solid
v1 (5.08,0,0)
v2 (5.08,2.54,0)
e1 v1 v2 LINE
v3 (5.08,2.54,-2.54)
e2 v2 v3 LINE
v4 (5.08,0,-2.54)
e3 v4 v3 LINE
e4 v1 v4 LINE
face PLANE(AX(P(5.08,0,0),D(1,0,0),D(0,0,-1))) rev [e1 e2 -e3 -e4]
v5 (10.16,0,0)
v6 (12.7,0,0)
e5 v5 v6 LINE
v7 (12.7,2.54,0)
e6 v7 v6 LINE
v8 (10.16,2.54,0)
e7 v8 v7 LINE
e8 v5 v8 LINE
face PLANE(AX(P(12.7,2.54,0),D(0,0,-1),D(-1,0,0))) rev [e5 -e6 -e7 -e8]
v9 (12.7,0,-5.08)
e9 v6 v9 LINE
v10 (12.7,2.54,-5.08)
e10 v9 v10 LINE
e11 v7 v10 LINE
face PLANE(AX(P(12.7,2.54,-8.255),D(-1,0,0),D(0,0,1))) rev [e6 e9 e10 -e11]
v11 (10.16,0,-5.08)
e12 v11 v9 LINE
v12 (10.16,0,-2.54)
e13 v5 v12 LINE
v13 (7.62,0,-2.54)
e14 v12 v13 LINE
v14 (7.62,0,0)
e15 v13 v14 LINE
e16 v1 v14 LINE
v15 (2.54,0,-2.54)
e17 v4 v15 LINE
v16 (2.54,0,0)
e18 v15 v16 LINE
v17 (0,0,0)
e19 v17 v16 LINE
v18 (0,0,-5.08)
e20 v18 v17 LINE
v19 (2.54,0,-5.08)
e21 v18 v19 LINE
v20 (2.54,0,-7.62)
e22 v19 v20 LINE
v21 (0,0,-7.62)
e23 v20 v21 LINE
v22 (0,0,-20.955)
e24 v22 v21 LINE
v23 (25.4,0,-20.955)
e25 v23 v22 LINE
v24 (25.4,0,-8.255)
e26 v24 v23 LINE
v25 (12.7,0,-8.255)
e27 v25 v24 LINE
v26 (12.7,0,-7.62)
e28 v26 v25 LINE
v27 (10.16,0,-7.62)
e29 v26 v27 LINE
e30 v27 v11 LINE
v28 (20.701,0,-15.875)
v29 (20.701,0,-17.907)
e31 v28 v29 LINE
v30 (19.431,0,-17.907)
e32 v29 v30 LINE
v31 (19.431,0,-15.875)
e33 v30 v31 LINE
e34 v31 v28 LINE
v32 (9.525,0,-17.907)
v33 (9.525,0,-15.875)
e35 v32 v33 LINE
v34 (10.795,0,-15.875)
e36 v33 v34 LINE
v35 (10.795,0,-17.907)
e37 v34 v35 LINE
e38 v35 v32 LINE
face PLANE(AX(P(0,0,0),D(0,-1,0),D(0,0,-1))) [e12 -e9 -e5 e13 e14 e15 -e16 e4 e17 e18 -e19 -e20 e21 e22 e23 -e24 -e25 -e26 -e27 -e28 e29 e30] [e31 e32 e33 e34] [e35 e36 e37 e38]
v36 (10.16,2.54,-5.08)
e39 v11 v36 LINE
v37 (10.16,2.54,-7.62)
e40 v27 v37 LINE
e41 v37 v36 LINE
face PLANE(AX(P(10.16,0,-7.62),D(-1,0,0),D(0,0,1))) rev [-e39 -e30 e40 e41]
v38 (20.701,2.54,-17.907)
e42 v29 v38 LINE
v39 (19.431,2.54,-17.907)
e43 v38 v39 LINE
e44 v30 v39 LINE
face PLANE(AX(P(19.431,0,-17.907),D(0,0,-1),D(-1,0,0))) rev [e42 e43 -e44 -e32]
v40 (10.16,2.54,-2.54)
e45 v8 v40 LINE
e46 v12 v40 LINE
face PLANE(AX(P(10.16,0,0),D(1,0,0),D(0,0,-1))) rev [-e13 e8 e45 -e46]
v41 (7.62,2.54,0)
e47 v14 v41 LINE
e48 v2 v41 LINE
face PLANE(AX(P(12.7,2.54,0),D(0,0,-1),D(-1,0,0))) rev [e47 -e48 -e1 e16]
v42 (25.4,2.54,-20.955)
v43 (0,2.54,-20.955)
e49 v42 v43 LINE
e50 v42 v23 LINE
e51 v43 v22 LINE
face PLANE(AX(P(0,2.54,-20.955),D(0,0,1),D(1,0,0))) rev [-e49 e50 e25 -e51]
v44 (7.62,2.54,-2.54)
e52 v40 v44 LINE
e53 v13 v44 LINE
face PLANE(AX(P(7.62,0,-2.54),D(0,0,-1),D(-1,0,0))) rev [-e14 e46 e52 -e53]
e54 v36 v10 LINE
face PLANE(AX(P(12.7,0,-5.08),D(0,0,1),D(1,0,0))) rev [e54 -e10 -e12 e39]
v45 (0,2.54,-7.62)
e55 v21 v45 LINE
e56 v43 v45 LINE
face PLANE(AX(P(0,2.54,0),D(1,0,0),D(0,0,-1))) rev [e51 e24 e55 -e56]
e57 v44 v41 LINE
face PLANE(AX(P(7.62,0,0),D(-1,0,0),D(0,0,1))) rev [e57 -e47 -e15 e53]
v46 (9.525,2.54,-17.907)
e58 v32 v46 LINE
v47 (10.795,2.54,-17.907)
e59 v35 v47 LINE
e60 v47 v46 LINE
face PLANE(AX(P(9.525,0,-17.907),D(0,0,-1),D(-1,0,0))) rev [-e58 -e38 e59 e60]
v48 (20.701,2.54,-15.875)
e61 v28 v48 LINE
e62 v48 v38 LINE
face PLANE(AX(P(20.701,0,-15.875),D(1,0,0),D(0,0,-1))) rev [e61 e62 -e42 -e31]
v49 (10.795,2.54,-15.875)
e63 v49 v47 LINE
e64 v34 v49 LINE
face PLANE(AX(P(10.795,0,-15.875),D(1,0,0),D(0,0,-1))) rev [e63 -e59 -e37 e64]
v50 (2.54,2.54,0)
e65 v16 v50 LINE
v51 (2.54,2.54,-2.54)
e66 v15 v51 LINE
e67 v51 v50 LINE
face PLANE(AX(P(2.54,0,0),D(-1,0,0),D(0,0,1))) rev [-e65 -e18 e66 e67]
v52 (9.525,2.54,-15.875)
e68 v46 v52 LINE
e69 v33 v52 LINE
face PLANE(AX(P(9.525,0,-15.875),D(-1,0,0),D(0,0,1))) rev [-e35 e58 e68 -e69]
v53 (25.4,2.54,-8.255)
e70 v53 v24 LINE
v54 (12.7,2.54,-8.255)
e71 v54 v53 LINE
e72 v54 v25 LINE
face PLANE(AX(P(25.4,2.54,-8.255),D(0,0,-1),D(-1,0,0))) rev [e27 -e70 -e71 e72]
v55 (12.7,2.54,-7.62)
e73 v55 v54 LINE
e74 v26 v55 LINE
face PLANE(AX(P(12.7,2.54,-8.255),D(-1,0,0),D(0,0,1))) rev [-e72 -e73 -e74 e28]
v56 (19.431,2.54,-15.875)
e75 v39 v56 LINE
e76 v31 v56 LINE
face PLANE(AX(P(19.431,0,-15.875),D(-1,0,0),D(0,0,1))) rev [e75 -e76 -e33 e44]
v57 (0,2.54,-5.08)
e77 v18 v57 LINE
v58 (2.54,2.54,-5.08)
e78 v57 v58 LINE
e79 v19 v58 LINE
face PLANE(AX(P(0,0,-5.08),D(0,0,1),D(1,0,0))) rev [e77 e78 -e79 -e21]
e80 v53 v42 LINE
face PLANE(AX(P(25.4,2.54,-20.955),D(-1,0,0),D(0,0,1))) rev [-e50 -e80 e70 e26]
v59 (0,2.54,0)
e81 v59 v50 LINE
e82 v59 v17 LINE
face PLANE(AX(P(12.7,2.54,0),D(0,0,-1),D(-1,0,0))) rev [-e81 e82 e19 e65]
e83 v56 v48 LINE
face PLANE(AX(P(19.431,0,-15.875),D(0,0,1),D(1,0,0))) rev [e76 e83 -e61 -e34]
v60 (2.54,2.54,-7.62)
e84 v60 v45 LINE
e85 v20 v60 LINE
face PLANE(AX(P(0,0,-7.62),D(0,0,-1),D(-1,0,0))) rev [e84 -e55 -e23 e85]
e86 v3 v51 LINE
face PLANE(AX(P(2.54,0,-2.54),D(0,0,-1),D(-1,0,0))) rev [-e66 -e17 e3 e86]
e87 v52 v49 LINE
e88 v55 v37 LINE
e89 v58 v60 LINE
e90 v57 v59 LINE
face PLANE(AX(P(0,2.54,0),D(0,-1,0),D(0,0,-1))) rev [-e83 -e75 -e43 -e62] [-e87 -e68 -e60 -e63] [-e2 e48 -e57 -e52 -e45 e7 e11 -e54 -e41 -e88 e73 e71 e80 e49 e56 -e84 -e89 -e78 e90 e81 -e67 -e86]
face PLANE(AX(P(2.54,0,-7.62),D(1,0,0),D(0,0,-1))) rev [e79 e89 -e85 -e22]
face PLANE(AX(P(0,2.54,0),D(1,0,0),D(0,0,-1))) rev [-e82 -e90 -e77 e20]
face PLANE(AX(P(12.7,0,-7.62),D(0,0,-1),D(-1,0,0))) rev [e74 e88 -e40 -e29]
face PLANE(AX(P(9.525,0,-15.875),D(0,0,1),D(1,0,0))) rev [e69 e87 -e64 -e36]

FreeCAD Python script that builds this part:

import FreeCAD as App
import Part
import Sketcher
Q = App.Units.Quantity


def add_polygon(sketch, points):
    """Adds a closed chain of lines whose ends are joined by coincident constraints."""
    first, n = sketch.GeometryCount, len(points)
    for a, b in zip(points, points[1:] + points[:1]):
        sketch.addGeometry(Part.LineSegment(App.Vector(*a, 0), App.Vector(*b, 0)), False)
    for i in range(n):
        sketch.addConstraint(Sketcher.Constraint("Coincident", first + i, 2, first + (i + 1) % n, 1))

doc = App.newDocument("Part")
body = doc.addObject("PartDesign::Body", "Body")

sketch1 = body.newObject("Sketcher::SketchObject", "Sketch")
sketch1.AttachmentSupport = (doc.getObject("XZ_Plane"), [""])
sketch1.MapMode = "FlatFace"
add_polygon(sketch1, [(0, -21), (0, 0), (13, 0), (13, -8), (25, -8), (25, -21)])
sketch1.addConstraint([
    Sketcher.Constraint("Vertical", 0),
    Sketcher.Constraint("Horizontal", 1),
    Sketcher.Constraint("Vertical", 2),
    Sketcher.Constraint("Horizontal", 3),
    Sketcher.Constraint("Vertical", 4),
    Sketcher.Constraint("Horizontal", 5),
    Sketcher.Constraint("Coincident", 0, 2, -1, 1),
    Sketcher.Constraint("Equal", 1, 3),
    Sketcher.Constraint("Equal", 3, 4),
    Sketcher.Constraint("DistanceX", 5, 2, 5, 1, Q("1 in")),
    Sketcher.Constraint("DistanceY", 0, 1, 0, 2, Q("0.825 in")),
])
pad1 = body.newObject("PartDesign::Pad", "Pad")
pad1.Profile = sketch1
pad1.Length = Q("0.1 in")
pad1.Reversed = True

sketch2 = body.newObject("Sketcher::SketchObject", "Sketch001")
sketch2.AttachmentSupport = (doc.getObject("XZ_Plane"), [""])
sketch2.MapMode = "FlatFace"
sketch2.AttachmentOffset = App.Placement(App.Vector(0, 0, -0.1 * 25.4), App.Rotation())
add_polygon(sketch2, [(2.5, -2.5), (2.5, 0), (5.1, 0), (5.1, -2.5)])
add_polygon(sketch2, [(7.6, -2.5), (7.6, 0), (10.2, 0), (10.2, -2.5)])
sketch2.addConstraint([
    Sketcher.Constraint("Vertical", 0),
    Sketcher.Constraint("Horizontal", 1),
    Sketcher.Constraint("Vertical", 2),
    Sketcher.Constraint("Horizontal", 3),
    Sketcher.Constraint("Vertical", 4),
    Sketcher.Constraint("Horizontal", 5),
    Sketcher.Constraint("Vertical", 6),
    Sketcher.Constraint("Horizontal", 7),
    Sketcher.Constraint("PointOnObject", 0, 2, -1),
    Sketcher.Constraint("PointOnObject", 4, 2, -1),
    Sketcher.Constraint("Horizontal", 3, 2, 6, 2),
    Sketcher.Constraint("Equal", 3, 5),
    Sketcher.Constraint("Equal", 7, 0),
    Sketcher.Constraint("DistanceX", 1, 1, 1, 2, Q("0.1 in")),
    Sketcher.Constraint("DistanceX", -1, 1, 0, 2, Q("0.1 in")),
    Sketcher.Constraint("DistanceX", -1, 1, 4, 2, Q("0.3 in")),
])
pocket1 = body.newObject("PartDesign::Pocket", "Pocket")
pocket1.Profile = sketch2
pocket1.Type = "ThroughAll"
pocket1.Reversed = True

sketch3 = body.newObject("Sketcher::SketchObject", "Sketch002")
sketch3.AttachmentSupport = (doc.getObject("XZ_Plane"), [""])
sketch3.MapMode = "FlatFace"
sketch3.AttachmentOffset = App.Placement(App.Vector(0, 0, -0.1 * 25.4), App.Rotation())
add_polygon(sketch3, [(9.5, -17.9), (9.5, -15.9), (10.8, -15.9), (10.8, -17.9)])
add_polygon(sketch3, [(19.4, -17.9), (19.4, -15.9), (20.7, -15.9), (20.7, -17.9)])
sketch3.addConstraint([
    Sketcher.Constraint("Vertical", 0),
    Sketcher.Constraint("Horizontal", 1),
    Sketcher.Constraint("Vertical", 2),
    Sketcher.Constraint("Horizontal", 3),
    Sketcher.Constraint("Vertical", 4),
    Sketcher.Constraint("Horizontal", 5),
    Sketcher.Constraint("Vertical", 6),
    Sketcher.Constraint("Horizontal", 7),
    Sketcher.Constraint("Horizontal", 1, 2, 4, 2),
    Sketcher.Constraint("Horizontal", 3, 2, 6, 2),
    Sketcher.Constraint("Equal", 3, 5),
    Sketcher.Constraint("DistanceX", 1, 1, 1, 2, Q("0.05 in")),
    Sketcher.Constraint("DistanceY", 0, 1, 0, 2, Q("0.08 in")),
    Sketcher.Constraint("DistanceX", 1, 2, 4, 2, Q("0.34 in")),
    Sketcher.Constraint("DistanceX", -1, 1, 0, 2, Q("0.375 in")),
    Sketcher.Constraint("DistanceY", 0, 2, -1, 1, Q("0.625 in")),
])
pocket2 = body.newObject("PartDesign::Pocket", "Pocket001")
pocket2.Profile = sketch3
pocket2.Type = "ThroughAll"
pocket2.Reversed = True

sketch4 = body.newObject("Sketcher::SketchObject", "Sketch003")
sketch4.AttachmentSupport = (doc.getObject("XZ_Plane"), [""])
sketch4.MapMode = "FlatFace"
sketch4.AttachmentOffset = App.Placement(App.Vector(0, 0, -0.1 * 25.4), App.Rotation())
add_polygon(sketch4, [(0, -7.6), (0, -5.1), (2.5, -5.1), (2.5, -7.6)])
add_polygon(sketch4, [(10.2, -7.6), (10.2, -5.1), (12.7, -5.1), (12.7, -7.6)])
sketch4.addConstraint([
    Sketcher.Constraint("Vertical", 0),
    Sketcher.Constraint("Horizontal", 1),
    Sketcher.Constraint("Vertical", 2),
    Sketcher.Constraint("Horizontal", 3),
    Sketcher.Constraint("Vertical", 4),
    Sketcher.Constraint("Horizontal", 5),
    Sketcher.Constraint("Vertical", 6),
    Sketcher.Constraint("Horizontal", 7),
    Sketcher.Constraint("PointOnObject", 0, 2, -2),
    Sketcher.Constraint("Horizontal", 1, 2, 4, 2),
    Sketcher.Constraint("Horizontal", 3, 2, 6, 2),
    Sketcher.Constraint("Equal", 3, 5),
    Sketcher.Constraint("Equal", 7, 0),
    Sketcher.Constraint("DistanceX", 1, 1, 1, 2, Q("0.1 in")),
    Sketcher.Constraint("DistanceY", 0, 2, -1, 1, Q("0.2 in")),
    Sketcher.Constraint("DistanceX", -1, 1, 4, 2, Q("0.4 in")),
])
pocket3 = body.newObject("PartDesign::Pocket", "Pocket002")
pocket3.Profile = sketch4
pocket3.Type = "ThroughAll"
pocket3.Reversed = True

doc.recompute()
